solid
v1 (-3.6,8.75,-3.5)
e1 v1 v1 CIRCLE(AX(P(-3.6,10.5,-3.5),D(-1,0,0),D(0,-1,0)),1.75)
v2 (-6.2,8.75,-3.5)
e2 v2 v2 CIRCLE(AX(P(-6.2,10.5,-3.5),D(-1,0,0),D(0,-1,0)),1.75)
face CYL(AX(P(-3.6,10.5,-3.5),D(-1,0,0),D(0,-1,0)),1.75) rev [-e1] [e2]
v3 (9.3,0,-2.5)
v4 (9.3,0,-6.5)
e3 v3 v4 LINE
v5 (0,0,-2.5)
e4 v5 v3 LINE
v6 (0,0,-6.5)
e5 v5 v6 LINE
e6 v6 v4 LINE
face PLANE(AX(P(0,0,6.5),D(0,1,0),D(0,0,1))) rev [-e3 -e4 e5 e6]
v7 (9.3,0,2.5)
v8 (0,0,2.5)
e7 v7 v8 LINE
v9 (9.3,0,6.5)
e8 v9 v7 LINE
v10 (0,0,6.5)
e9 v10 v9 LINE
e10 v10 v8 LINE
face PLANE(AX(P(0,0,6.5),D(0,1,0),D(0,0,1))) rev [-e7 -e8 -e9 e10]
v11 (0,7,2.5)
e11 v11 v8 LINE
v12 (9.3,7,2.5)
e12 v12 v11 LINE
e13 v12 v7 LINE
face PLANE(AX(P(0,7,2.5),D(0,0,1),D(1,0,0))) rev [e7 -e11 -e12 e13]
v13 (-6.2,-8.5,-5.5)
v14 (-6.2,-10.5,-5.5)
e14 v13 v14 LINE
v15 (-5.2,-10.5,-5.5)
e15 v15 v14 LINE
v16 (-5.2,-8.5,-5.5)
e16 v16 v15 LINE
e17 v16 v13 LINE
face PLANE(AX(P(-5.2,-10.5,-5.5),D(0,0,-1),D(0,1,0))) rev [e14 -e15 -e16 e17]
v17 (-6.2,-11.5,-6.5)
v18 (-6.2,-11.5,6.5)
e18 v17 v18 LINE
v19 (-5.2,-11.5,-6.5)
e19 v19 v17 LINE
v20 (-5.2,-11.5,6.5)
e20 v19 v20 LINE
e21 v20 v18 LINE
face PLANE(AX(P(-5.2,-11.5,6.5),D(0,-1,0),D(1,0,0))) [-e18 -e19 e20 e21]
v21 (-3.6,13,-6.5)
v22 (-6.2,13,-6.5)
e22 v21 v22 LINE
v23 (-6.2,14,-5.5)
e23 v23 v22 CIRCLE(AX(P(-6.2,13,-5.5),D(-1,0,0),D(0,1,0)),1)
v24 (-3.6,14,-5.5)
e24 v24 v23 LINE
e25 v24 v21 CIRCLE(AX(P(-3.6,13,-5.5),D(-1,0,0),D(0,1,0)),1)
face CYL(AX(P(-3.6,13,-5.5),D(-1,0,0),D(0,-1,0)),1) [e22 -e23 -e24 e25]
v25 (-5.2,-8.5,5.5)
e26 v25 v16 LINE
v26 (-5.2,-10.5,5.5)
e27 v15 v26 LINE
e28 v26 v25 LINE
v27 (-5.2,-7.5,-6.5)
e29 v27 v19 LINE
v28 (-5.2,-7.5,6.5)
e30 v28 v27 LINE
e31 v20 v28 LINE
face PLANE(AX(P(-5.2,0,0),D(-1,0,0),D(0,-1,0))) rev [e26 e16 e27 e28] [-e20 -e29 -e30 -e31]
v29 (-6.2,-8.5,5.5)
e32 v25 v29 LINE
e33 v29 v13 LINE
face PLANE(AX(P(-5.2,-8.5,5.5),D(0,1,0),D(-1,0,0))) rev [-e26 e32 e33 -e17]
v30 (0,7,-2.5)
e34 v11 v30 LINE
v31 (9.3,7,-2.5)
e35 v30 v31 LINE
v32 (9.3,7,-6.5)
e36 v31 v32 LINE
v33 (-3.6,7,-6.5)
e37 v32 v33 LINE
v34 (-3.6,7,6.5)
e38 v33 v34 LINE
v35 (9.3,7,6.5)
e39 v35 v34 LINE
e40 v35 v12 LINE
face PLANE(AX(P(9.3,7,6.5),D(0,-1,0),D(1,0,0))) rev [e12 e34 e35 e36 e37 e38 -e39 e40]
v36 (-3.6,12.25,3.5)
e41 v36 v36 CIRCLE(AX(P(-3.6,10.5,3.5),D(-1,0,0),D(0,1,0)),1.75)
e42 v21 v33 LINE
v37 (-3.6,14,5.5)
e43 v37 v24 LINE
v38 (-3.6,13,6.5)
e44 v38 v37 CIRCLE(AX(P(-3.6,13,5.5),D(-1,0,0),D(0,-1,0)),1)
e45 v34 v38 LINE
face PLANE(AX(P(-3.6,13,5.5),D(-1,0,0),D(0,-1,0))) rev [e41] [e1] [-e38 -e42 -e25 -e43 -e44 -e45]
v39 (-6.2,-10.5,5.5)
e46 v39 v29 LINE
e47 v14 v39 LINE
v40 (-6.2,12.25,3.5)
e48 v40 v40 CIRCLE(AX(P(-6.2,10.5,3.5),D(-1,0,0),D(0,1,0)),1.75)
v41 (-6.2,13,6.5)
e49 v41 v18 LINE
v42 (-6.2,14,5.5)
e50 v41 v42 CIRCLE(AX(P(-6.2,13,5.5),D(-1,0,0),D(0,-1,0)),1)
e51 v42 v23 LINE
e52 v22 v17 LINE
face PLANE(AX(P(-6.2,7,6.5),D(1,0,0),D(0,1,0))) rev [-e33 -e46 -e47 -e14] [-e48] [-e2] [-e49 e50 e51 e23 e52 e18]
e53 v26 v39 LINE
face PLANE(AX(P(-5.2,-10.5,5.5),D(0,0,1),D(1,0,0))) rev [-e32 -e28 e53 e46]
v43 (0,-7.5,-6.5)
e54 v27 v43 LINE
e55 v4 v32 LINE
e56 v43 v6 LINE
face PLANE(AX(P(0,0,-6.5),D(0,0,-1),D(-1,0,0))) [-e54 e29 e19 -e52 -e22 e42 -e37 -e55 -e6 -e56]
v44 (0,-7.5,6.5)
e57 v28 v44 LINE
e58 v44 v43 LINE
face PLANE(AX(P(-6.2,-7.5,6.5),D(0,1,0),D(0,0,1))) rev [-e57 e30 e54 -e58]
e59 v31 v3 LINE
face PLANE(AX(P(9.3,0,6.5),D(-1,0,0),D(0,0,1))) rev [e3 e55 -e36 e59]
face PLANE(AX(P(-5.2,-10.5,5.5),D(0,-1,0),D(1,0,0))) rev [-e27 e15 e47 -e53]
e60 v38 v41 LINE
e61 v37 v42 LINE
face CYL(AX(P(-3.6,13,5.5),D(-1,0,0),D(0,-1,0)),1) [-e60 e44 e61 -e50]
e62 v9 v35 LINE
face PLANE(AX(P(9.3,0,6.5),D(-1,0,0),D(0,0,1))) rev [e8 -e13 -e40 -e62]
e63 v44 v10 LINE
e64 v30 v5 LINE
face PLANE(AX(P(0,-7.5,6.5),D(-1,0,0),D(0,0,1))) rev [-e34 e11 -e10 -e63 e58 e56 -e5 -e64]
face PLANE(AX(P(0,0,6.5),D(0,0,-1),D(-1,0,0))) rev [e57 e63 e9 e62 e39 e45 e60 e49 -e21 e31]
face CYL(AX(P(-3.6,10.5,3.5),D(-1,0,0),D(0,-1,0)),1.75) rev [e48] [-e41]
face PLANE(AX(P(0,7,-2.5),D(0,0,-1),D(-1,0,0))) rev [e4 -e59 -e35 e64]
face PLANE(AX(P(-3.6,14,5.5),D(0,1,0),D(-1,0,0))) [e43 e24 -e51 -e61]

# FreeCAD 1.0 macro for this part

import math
import FreeCAD as App
import Part
import Sketcher

V = App.Vector

doc = App.newDocument("Part")
body = doc.addObject("PartDesign::Body", "Body")

# Sketch on XY plane
sketch1 = doc.addObject("Sketcher::SketchObject", "Sketch")
body.addObject(sketch1)
sketch1.AttachmentSupport = (doc.XY_Plane, [""])
sketch1.MapMode = "FlatFace"
sketch1.addGeometry([
    Part.LineSegment(V(0, 0, 0), V(9, 0, 0)),  # 0
    Part.LineSegment(V(9, 0, 0), V(9, 7, 0)),  # 1
    Part.LineSegment(V(9, 7, 0), V(-6, 7, 0)),  # 2
    Part.LineSegment(V(-6, 7, 0), V(-6, -8, 0)),  # 3
    Part.LineSegment(V(-6, -8, 0), V(0, -8, 0)),  # 4
    Part.LineSegment(V(0, -8, 0), V(0, 0, 0)),  # 5
], False)
sketch1.addConstraint([
    Sketcher.Constraint("Coincident", 0, 2, 1, 1),
    Sketcher.Constraint("Coincident", 1, 2, 2, 1),
    Sketcher.Constraint("Coincident", 2, 2, 3, 1),
    Sketcher.Constraint("Coincident", 3, 2, 4, 1),
    Sketcher.Constraint("Coincident", 4, 2, 5, 1),
    Sketcher.Constraint("Coincident", 5, 2, 0, 1),
    Sketcher.Constraint("Horizontal", 0),
    Sketcher.Constraint("Vertical", 1),
    Sketcher.Constraint("Horizontal", 2),
    Sketcher.Constraint("Vertical", 3),
    Sketcher.Constraint("Horizontal", 4),
    Sketcher.Constraint("Vertical", 5),
    Sketcher.Constraint("Coincident", 5, 2, -1, 1),
    Sketcher.Constraint("DistanceY", 1, 1, 1, 2, 7.0),
    Sketcher.Constraint("DistanceX", 0, 1, 0, 2, 9.3),
    Sketcher.Constraint("DistanceX", 2, 2, 2, 1, 15.5),
    Sketcher.Constraint("DistanceY", 3, 2, 3, 1, 14.5),
])
pad1 = doc.addObject("PartDesign::Pad", "Pad")
body.addObject(pad1)
pad1.Profile = sketch1
pad1.Length = 13
pad1.Midplane = True

# Sketch on XZ plane
sketch2 = doc.addObject("Sketcher::SketchObject", "Sketch001")
body.addObject(sketch2)
sketch2.AttachmentSupport = (doc.XZ_Plane, [""])
sketch2.MapMode = "FlatFace"
sketch2.addGeometry([
    Part.LineSegment(V(0, 2, 0), V(0, -2, 0)),
    Part.LineSegment(V(0, -2, 0), V(9, -2, 0)),
    Part.LineSegment(V(9, -2, 0), V(9, 2, 0)),
    Part.LineSegment(V(9, 2, 0), V(0, 2, 0)),
], False)
sketch2.addConstraint([
    Sketcher.Constraint("Coincident", 0, 2, 1, 1),
    Sketcher.Constraint("Coincident", 1, 2, 2, 1),
    Sketcher.Constraint("Coincident", 2, 2, 3, 1),
    Sketcher.Constraint("Coincident", 3, 2, 0, 1),
    Sketcher.Constraint("Vertical", 0),
    Sketcher.Constraint("Horizontal", 1),
    Sketcher.Constraint("Vertical", 2),
    Sketcher.Constraint("Horizontal", 3),
    Sketcher.Constraint("Symmetric", 0, 2, 3, 2, -1, 1),
    Sketcher.Constraint("DistanceY", 0, 2, 0, 1, 5.0),
    Sketcher.Constraint("DistanceX", 1, 1, 1, 2, 9.3),
])
pocket1 = doc.addObject("PartDesign::Pocket", "Pocket")
body.addObject(pocket1)
pocket1.Profile = sketch2
pocket1.Type = "ThroughAll"

# Sketch on YZ plane
sketch3 = doc.addObject("Sketcher::SketchObject", "Sketch002")
body.addObject(sketch3)
sketch3.AttachmentSupport = (doc.YZ_Plane, [""])
sketch3.MapMode = "FlatFace"
sketch3.AttachmentOffset = App.Placement(V(0, 0, -6.2), App.Rotation())
sketch3.addGeometry([
    Part.LineSegment(V(14, 5.5, 0), V(14, -5.5, 0)),  # 0
    Part.ArcOfCircle(Part.Circle(V(13, -5.5, 0), V(0, 0, 1), 1), math.radians(-90), math.radians(0)),  # 1
    Part.LineSegment(V(13, -6.5, 0), V(7, -6.5, 0)),  # 2
    Part.LineSegment(V(7, -6.5, 0), V(7, 6.5, 0)),  # 3
    Part.LineSegment(V(7, 6.5, 0), V(13, 6.5, 0)),  # 4
    Part.ArcOfCircle(Part.Circle(V(13, 5.5, 0), V(0, 0, 1), 1), math.radians(0), math.radians(90)),  # 5
    Part.Circle(V(10.5, -3.5, 0), V(0, 0, 1), 1.8),  # 6
    Part.Circle(V(10.5, 3.5, 0), V(0, 0, 1), 1.8),  # 7
], False)
sketch3.addConstraint([
    Sketcher.Constraint("Tangent", 0, 2, 1, 2),
    Sketcher.Constraint("Tangent", 1, 1, 2, 1),
    Sketcher.Constraint("Coincident", 2, 2, 3, 1),
    Sketcher.Constraint("Coincident", 3, 2, 4, 1),
    Sketcher.Constraint("Tangent", 4, 2, 5, 2),
    Sketcher.Constraint("Tangent", 5, 1, 0, 1),
    Sketcher.Constraint("Vertical", 0),
    Sketcher.Constraint("Horizontal", 2),
    Sketcher.Constraint("Vertical", 3),
    Sketcher.Constraint("Horizontal", 4),
    Sketcher.Constraint("Equal", 1, 5),
    Sketcher.Constraint("Equal", 6, 7),
    Sketcher.Constraint("Symmetric", 6, 3, 7, 3, -1),
    Sketcher.Constraint("Radius", 1, 1.0),
    Sketcher.Constraint("Diameter", 6, 3.5),
    Sketcher.Constraint("DistanceX", 2, 2, 2, 1, 6.0),
    Sketcher.Constraint("DistanceY", 0, 2, 0, 1, 11.0),
    Sketcher.Constraint("DistanceX", -1, 1, 1, 3, 13.0),
    Sketcher.Constraint("DistanceY", 1, 3, 6, 3, 2.0),
    Sketcher.Constraint("DistanceY", 7, 3, 5, 3, 2.0),
    Sketcher.Constraint("DistanceX", -1, 1, 6, 3, 10.5),
])
pad2 = doc.addObject("PartDesign::Pad", "Pad001")
body.addObject(pad2)
pad2.Profile = sketch3
pad2.Length = 2.6

# Sketch on YZ plane
sketch4 = doc.addObject("Sketcher::SketchObject", "Sketch003")
body.addObject(sketch4)
sketch4.AttachmentSupport = (doc.YZ_Plane, [""])
sketch4.MapMode = "FlatFace"
sketch4.AttachmentOffset = App.Placement(V(0, 0, -6.2), App.Rotation())
sketch4.addGeometry([
    Part.LineSegment(V(-7.5, -6.5, 0), V(-11.5, -6.5, 0)),  # 0
    Part.LineSegment(V(-11.5, -6.5, 0), V(-11.5, 6.5, 0)),  # 1
    Part.LineSegment(V(-11.5, 6.5, 0), V(-7.5, 6.5, 0)),  # 2
    Part.LineSegment(V(-7.5, 6.5, 0), V(-7.5, -6.5, 0)),  # 3
    Part.LineSegment(V(-10.5, 5.5, 0), V(-10.5, -5.5, 0)),  # 4
    Part.LineSegment(V(-10.5, -5.5, 0), V(-8.5, -5.5, 0)),  # 5
    Part.LineSegment(V(-8.5, -5.5, 0), V(-8.5, 5.5, 0)),  # 6
    Part.LineSegment(V(-8.5, 5.5, 0), V(-10.5, 5.5, 0)),  # 7
], False)
sketch4.addConstraint([
    Sketcher.Constraint("Coincident", 0, 2, 1, 1),
    Sketcher.Constraint("Coincident", 1, 2, 2, 1),
    Sketcher.Constraint("Coincident", 2, 2, 3, 1),
    Sketcher.Constraint("Coincident", 3, 2, 0, 1),
    Sketcher.Constraint("Coincident", 4, 2, 5, 1),
    Sketcher.Constraint("Coincident", 5, 2, 6, 1),
    Sketcher.Constraint("Coincident", 6, 2, 7, 1),
    Sketcher.Constraint("Coincident", 7, 2, 4, 1),
    Sketcher.Constraint("Horizontal", 0),
    Sketcher.Constraint("Vertical", 1),
    Sketcher.Constraint("Horizontal", 2),
    Sketcher.Constraint("Vertical", 3),
    Sketcher.Constraint("Vertical", 4),
    Sketcher.Constraint("Horizontal", 5),
    Sketcher.Constraint("Vertical", 6),
    Sketcher.Constraint("Horizontal", 7),
    Sketcher.Constraint("DistanceX", 0, 2, 0, 1, 4.0),
    Sketcher.Constraint("DistanceX", 5, 1, 5, 2, 2.0),
    Sketcher.Constraint("DistanceY", 1, 1, 1, 2, 13.0),
    Sketcher.Constraint("DistanceY", 4, 2, 4, 1, 11.0),
    Sketcher.Constraint("DistanceX", 0, 2, 4, 2, 1.0),
    Sketcher.Constraint("DistanceY", 0, 2, 4, 2, 1.0),
    Sketcher.Constraint("DistanceX", 0, 2, -1, 1, 11.5),
    Sketcher.Constraint("DistanceY", 0, 2, -1, 1, 6.5),
])
pad3 = doc.addObject("PartDesign::Pad", "Pad002")
body.addObject(pad3)
pad3.Profile = sketch4
pad3.Length = 1

doc.recompute()
